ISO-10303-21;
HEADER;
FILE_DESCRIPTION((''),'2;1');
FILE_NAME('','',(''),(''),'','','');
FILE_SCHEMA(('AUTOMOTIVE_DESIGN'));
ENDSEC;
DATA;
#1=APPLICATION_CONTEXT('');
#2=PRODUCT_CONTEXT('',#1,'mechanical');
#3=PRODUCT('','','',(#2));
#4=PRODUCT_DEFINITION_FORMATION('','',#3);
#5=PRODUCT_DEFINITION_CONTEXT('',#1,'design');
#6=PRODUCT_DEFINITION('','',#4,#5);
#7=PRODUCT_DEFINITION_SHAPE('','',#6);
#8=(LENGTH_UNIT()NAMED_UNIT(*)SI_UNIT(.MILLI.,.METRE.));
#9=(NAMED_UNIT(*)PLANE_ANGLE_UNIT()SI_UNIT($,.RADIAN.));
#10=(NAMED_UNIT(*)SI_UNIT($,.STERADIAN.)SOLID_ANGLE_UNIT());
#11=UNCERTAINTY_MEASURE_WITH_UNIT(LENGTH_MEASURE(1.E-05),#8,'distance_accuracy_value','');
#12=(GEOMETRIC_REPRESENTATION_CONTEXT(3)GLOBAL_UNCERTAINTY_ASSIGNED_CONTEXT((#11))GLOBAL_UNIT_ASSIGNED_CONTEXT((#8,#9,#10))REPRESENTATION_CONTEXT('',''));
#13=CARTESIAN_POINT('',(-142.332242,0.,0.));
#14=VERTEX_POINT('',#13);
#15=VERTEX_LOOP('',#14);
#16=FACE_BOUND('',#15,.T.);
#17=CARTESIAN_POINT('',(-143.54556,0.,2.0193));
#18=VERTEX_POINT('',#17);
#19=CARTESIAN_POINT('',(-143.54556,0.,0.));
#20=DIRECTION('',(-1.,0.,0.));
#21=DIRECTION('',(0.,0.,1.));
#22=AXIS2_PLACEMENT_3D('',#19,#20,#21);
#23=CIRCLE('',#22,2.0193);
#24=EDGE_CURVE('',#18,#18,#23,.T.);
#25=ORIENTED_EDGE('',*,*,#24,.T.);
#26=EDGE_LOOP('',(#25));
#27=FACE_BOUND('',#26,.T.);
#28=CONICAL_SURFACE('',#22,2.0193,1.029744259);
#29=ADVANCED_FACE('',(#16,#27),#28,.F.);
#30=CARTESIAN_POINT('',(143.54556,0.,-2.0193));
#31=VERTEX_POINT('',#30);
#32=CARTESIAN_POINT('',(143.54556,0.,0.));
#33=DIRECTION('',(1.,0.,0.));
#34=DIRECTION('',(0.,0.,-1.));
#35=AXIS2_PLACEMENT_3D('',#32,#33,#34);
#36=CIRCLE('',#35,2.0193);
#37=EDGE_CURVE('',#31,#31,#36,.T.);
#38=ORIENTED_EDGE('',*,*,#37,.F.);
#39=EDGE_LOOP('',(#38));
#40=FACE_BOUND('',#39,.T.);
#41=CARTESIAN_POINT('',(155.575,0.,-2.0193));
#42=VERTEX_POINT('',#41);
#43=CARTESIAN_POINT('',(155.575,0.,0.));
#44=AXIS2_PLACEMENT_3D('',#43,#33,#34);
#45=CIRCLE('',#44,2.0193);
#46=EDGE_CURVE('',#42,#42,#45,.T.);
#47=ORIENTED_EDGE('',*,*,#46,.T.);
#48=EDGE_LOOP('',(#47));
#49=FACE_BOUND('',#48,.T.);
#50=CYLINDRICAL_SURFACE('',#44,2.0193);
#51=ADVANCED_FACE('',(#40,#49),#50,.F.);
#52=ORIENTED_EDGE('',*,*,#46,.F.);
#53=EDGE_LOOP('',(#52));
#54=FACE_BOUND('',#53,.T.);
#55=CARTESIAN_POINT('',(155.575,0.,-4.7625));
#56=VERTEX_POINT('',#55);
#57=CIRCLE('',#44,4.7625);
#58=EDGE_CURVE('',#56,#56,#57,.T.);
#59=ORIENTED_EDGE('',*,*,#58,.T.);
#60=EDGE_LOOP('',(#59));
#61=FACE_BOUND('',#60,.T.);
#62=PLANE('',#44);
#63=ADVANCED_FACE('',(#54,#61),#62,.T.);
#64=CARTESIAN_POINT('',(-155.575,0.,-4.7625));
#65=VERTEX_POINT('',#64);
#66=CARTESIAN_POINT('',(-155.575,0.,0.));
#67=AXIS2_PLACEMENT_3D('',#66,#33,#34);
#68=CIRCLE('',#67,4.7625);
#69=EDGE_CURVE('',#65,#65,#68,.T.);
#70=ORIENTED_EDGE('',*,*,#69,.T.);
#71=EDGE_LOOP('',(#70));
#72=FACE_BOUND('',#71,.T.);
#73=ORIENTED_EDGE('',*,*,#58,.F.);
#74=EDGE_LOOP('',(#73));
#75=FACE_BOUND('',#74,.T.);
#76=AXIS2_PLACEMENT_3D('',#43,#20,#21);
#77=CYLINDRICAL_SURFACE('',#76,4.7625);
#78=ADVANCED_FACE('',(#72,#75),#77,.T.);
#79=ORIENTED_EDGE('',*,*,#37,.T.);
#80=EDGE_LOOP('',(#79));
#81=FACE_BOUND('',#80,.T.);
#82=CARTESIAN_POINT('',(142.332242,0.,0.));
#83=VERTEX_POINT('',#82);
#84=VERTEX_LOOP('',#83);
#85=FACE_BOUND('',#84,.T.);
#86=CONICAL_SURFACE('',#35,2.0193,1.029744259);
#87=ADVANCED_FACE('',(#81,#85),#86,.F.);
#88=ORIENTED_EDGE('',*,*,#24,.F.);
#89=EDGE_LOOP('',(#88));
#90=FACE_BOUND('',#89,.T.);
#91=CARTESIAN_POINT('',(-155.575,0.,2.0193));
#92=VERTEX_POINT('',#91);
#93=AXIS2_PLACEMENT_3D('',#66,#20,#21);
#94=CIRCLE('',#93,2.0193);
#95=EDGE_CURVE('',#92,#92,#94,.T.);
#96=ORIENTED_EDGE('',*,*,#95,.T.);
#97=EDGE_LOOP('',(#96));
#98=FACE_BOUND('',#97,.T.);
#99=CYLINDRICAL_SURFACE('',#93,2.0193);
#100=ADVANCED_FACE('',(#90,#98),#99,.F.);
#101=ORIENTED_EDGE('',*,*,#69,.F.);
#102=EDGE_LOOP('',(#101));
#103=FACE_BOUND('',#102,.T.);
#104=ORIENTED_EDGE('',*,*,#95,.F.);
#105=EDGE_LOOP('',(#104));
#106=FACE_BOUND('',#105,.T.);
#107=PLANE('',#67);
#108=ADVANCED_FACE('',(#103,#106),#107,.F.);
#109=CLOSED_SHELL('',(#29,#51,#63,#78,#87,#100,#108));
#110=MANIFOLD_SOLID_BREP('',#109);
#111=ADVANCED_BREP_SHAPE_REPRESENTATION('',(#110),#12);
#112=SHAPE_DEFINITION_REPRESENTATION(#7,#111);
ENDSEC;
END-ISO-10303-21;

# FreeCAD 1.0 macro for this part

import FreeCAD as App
import Part
import Sketcher
from FreeCAD import Vector
Q = App.Units.Quantity

doc = App.newDocument("Part")
body = doc.addObject("PartDesign::Body", "Body")

# Sketch on YZ plane
sketch1 = doc.addObject("Sketcher::SketchObject", "Sketch")
body.addObject(sketch1)
sketch1.AttachmentSupport = (doc.YZ_Plane, [""])
sketch1.MapMode = "FlatFace"
sketch1.addGeometry(Part.Circle(Vector(0, 0, 0), Vector(0, 0, 1), 4.8), False)
sketch1.addConstraint(Sketcher.Constraint("Coincident", 0, 3, -1, 1))
sketch1.addConstraint(Sketcher.Constraint("Diameter", 0, Q("0.375 in")))
pad1 = doc.addObject("PartDesign::Pad", "Pad")
body.addObject(pad1)
pad1.Profile = sketch1
pad1.Length = Q("12.25 in")
pad1.Midplane = True

# Sketch on YZ plane
sketch2 = doc.addObject("Sketcher::SketchObject", "Sketch001")
body.addObject(sketch2)
sketch2.AttachmentSupport = (doc.YZ_Plane, [""])
sketch2.MapMode = "FlatFace"
sketch2.AttachmentOffset = App.Placement(Vector(0, 0, 6.125 * 25.4), App.Rotation())
sketch2.addGeometry(Part.Circle(Vector(0, 0, 0), Vector(0, 0, 1), 2), False)
sketch2.addConstraint(Sketcher.Constraint("Coincident", 0, 3, -1, 1))
sketch2.addConstraint(Sketcher.Constraint("Diameter", 0, Q("0.159 in")))
doc.recompute()
hole = doc.addObject("PartDesign::Hole", "Hole")
body.addObject(hole)
hole.Profile = sketch2
hole.ThreadType = "None"
hole.Diameter = Q("0.159 in")
hole.DepthType = "Dimension"
hole.Depth = Q("0.4736 in")
hole.DrillPoint = "Angled"
hole.DrillPointAngle = 118

# Sketch on YZ plane
sketch3 = doc.addObject("Sketcher::SketchObject", "Sketch002")
body.addObject(sketch3)
sketch3.AttachmentSupport = (doc.YZ_Plane, [""])
sketch3.MapMode = "FlatFace"
sketch3.AttachmentOffset = App.Placement(Vector(0, 0, -6.125 * 25.4), App.Rotation())
sketch3.addGeometry(Part.Circle(Vector(0, 0, 0), Vector(0, 0, 1), 2), False)
sketch3.addConstraint(Sketcher.Constraint("Coincident", 0, 3, -1, 1))
sketch3.addConstraint(Sketcher.Constraint("Diameter", 0, Q("0.159 in")))
doc.recompute()
hole2 = doc.addObject("PartDesign::Hole", "Hole001")
body.addObject(hole2)
hole2.Profile = sketch3
hole2.ThreadType = "None"
hole2.Diameter = Q("0.159 in")
hole2.DepthType = "Dimension"
hole2.Depth = Q("0.4736 in")
hole2.DrillPoint = "Angled"
hole2.DrillPointAngle = 118
hole2.Reversed = True

doc.recompute()
